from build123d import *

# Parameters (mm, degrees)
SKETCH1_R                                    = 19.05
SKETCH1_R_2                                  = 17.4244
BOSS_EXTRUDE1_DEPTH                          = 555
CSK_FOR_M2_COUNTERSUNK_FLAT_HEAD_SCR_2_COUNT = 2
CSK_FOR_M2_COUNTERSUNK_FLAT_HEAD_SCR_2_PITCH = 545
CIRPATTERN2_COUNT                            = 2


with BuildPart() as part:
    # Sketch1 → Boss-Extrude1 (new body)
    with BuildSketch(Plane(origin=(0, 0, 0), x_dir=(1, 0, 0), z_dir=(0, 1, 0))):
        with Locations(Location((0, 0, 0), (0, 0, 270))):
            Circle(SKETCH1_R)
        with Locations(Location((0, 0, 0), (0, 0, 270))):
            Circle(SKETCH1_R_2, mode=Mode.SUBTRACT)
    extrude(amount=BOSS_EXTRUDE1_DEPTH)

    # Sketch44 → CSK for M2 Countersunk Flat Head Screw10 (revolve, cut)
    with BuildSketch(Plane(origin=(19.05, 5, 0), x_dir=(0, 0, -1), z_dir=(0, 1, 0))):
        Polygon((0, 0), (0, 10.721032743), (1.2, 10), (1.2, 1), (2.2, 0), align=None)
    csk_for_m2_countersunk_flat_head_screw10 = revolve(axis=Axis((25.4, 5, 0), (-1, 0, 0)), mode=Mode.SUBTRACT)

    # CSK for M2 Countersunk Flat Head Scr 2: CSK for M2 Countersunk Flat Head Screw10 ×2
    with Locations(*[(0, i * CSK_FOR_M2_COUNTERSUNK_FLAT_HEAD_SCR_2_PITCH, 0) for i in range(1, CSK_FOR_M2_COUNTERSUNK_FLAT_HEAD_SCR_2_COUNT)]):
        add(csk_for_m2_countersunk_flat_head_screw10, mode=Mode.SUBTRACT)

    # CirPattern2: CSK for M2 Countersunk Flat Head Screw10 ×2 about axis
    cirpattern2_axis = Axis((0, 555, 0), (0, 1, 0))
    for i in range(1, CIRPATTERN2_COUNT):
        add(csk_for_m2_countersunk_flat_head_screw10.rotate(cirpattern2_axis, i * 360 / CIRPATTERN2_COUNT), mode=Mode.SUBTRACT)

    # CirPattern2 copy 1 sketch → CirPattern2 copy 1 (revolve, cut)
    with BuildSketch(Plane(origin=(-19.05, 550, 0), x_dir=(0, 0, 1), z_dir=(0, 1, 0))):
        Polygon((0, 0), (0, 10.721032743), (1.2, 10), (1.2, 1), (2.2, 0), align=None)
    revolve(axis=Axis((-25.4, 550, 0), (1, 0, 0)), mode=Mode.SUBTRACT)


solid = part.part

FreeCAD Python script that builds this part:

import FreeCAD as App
import Part
import Sketcher
Q = App.Units.Quantity


def add_polygon(sketch, points):
    """Adds a closed chain of lines whose ends are joined by coincident constraints."""
    first, n = sketch.GeometryCount, len(points)
    for a, b in zip(points, points[1:] + points[:1]):
        sketch.addGeometry(Part.LineSegment(App.Vector(*a, 0), App.Vector(*b, 0)), False)
    for i in range(n):
        sketch.addConstraint(Sketcher.Constraint("Coincident", first + i, 2, first + (i + 1) % n, 1))

doc = App.newDocument("Part")
body = doc.addObject("PartDesign::Body", "Body")

sketch1 = doc.addObject("Sketcher::SketchObject", "Sketch")
body.addObject(sketch1)
sketch1.AttachmentSupport = (doc.XZ_Plane, [""])
sketch1.MapMode = "FlatFace"
sketch1.addGeometry(Part.Circle(App.Vector(0, 0, 0), App.Vector(0, 0, 1), 19), False)
sketch1.addGeometry(Part.Circle(App.Vector(0, 0, 0), App.Vector(0, 0, 1), 17), False)
sketch1.addConstraint(Sketcher.Constraint("Coincident", 0, 3, -1, 1))
sketch1.addConstraint(Sketcher.Constraint("Coincident", 1, 3, -1, 1))
sketch1.addConstraint(Sketcher.Constraint("Diameter", 0, Q("38.1 mm")))
sketch1.addConstraint(Sketcher.Constraint("Diameter", 1, Q("34.8488 mm")))
pad1 = doc.addObject("PartDesign::Pad", "Pad")
body.addObject(pad1)
pad1.Profile = sketch1
pad1.Length = 555
pad1.Reversed = True

sketch2 = doc.addObject("Sketcher::SketchObject", "Sketch001")
body.addObject(sketch2)
sketch2.AttachmentSupport = (doc.XZ_Plane, [""])
sketch2.MapMode = "FlatFace"
sketch2.AttachmentOffset = App.Placement(App.Vector(0, 0, -5), App.Rotation())
add_polygon(sketch2, [(8.3, 0), (19.1, 0), (19.1, -2.2), (18.1, -1.2), (9.1, -1.2)])
sketch2.addConstraint(Sketcher.Constraint("Horizontal", 0))
sketch2.addConstraint(Sketcher.Constraint("Vertical", 1))
sketch2.addConstraint(Sketcher.Constraint("Horizontal", 3))
sketch2.addConstraint(Sketcher.Constraint("PointOnObject", 0, 2, -1))
sketch2.addConstraint(Sketcher.Constraint("DistanceX", 3, 2, 3, 1, Q("9 mm")))
sketch2.addConstraint(Sketcher.Constraint("Angle", 2, Q("135 deg")))
sketch2.addConstraint(Sketcher.Constraint("Angle", 4, Q("121 deg")))
sketch2.addConstraint(Sketcher.Constraint("DistanceY", 1, 2, 1, 1, Q("2.2 mm")))
sketch2.addConstraint(Sketcher.Constraint("DistanceX", 2, 2, 1, 2, Q("1 mm")))
sketch2.addConstraint(Sketcher.Constraint("DistanceX", -1, 1, 0, 2, Q("19.05 mm")))
groove = doc.addObject("PartDesign::Groove", "Groove")
body.addObject(groove)
groove.Profile = sketch2
groove.ReferenceAxis = (sketch2, ["H_Axis"])
groove.Angle = 360
doc.recompute()

linearpattern = doc.addObject("PartDesign::LinearPattern", "LinearPattern")
body.addObject(linearpattern)
linearpattern.Originals = [groove]
linearpattern.Direction = (doc.Y_Axis, [""])
linearpattern.Mode = "offset"
linearpattern.Offset = 545
linearpattern.Occurrences = 2
body.Tip = linearpattern
doc.recompute()

polarpattern = doc.addObject("PartDesign::PolarPattern", "PolarPattern")
body.addObject(polarpattern)
polarpattern.Originals = [groove]
polarpattern.Axis = (doc.Y_Axis, [""])
polarpattern.Angle = 360
polarpattern.Occurrences = 2
body.Tip = polarpattern

sketch3 = doc.addObject("Sketcher::SketchObject", "Sketch002")
body.addObject(sketch3)
sketch3.AttachmentSupport = (doc.XZ_Plane, [""])
sketch3.MapMode = "FlatFace"
sketch3.AttachmentOffset = App.Placement(App.Vector(0, 0, -550), App.Rotation())
add_polygon(sketch3, [(-8.3, 0), (-19.1, 0), (-19.1, 2.2), (-18.1, 1.2), (-9.1, 1.2)])
sketch3.addConstraint(Sketcher.Constraint("Horizontal", 0))
sketch3.addConstraint(Sketcher.Constraint("Vertical", 1))
sketch3.addConstraint(Sketcher.Constraint("Horizontal", 3))
sketch3.addConstraint(Sketcher.Constraint("PointOnObject", 0, 2, -1))
sketch3.addConstraint(Sketcher.Constraint("DistanceX", 3, 1, 3, 2, Q("9 mm")))
sketch3.addConstraint(Sketcher.Constraint("Angle", 2, Q("-45 deg")))
sketch3.addConstraint(Sketcher.Constraint("Angle", 4, Q("-59 deg")))
sketch3.addConstraint(Sketcher.Constraint("DistanceY", 1, 1, 1, 2, Q("2.2 mm")))
sketch3.addConstraint(Sketcher.Constraint("DistanceX", 1, 2, 2, 2, Q("1 mm")))
sketch3.addConstraint(Sketcher.Constraint("DistanceX", 0, 2, -1, 1, Q("19.05 mm")))
groove2 = doc.addObject("PartDesign::Groove", "Groove001")
body.addObject(groove2)
groove2.Profile = sketch3
groove2.ReferenceAxis = (sketch3, ["H_Axis"])
groove2.Angle = 360

doc.recompute()
